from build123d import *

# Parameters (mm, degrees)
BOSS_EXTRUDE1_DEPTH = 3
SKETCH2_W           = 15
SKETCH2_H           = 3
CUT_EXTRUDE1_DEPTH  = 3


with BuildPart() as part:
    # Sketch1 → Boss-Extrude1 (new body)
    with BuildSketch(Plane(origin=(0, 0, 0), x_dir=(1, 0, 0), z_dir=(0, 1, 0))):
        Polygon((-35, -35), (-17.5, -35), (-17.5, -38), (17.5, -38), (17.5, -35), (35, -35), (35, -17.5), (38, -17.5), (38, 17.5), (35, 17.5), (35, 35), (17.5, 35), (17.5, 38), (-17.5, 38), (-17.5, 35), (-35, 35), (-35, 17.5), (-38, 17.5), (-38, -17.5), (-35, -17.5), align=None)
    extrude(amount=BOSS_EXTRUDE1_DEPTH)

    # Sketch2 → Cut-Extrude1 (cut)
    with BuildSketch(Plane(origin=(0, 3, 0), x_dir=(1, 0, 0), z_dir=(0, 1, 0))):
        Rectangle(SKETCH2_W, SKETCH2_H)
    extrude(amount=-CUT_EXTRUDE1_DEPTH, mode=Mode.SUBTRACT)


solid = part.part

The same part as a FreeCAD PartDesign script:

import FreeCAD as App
import Part
import Sketcher
from FreeCAD import Vector


def add_polygon(sketch, points):
    """Adds a closed chain of lines whose ends are joined by coincident constraints."""
    first, n = sketch.GeometryCount, len(points)
    for a, b in zip(points, points[1:] + points[:1]):
        sketch.addGeometry(Part.LineSegment(App.Vector(*a, 0), App.Vector(*b, 0)), False)
    for i in range(n):
        sketch.addConstraint(Sketcher.Constraint("Coincident", first + i, 2, first + (i + 1) % n, 1))

doc = App.newDocument("Part")
body = doc.addObject("PartDesign::Body", "Body")

# Sketch on XZ plane
sketch1 = body.newObject("Sketcher::SketchObject", "Sketch")
sketch1.AttachmentSupport = (doc.getObject("XZ_Plane"), [""])
sketch1.MapMode = "FlatFace"
add_polygon(sketch1, [(-35, 35), (-17.5, 35), (-17.5, 38), (17.5, 38), (17.5, 35), (35, 35), (35, 17.5), (38, 17.5), (38, -17.5), (35, -17.5), (35, -35), (17.5, -35), (17.5, -38), (-17.5, -38), (-17.5, -35), (-35, -35), (-35, -17.5), (-38, -17.5), (-38, 17.5), (-35, 17.5)])  # lines 0-19
sketch1.addConstraint([
    Sketcher.Constraint("Horizontal", 0),
    Sketcher.Constraint("Vertical", 1),
    Sketcher.Constraint("Horizontal", 2),
    Sketcher.Constraint("Vertical", 3),
    Sketcher.Constraint("Horizontal", 4),
    Sketcher.Constraint("Vertical", 5),
    Sketcher.Constraint("Horizontal", 6),
    Sketcher.Constraint("Vertical", 7),
    Sketcher.Constraint("Horizontal", 8),
    Sketcher.Constraint("Vertical", 9),
    Sketcher.Constraint("Horizontal", 10),
    Sketcher.Constraint("Vertical", 11),
    Sketcher.Constraint("Horizontal", 12),
    Sketcher.Constraint("Vertical", 13),
    Sketcher.Constraint("Horizontal", 14),
    Sketcher.Constraint("Vertical", 15),
    Sketcher.Constraint("Horizontal", 16),
    Sketcher.Constraint("Vertical", 17),
    Sketcher.Constraint("Horizontal", 18),
    Sketcher.Constraint("Vertical", 19),
    Sketcher.Constraint("Symmetric", 0, 2, 10, 2, -1, 1),
    Sketcher.Constraint("Symmetric", 2, 2, 12, 2, -1, 1),
    Sketcher.Constraint("Symmetric", 4, 2, 14, 2, -1, 1),
    Sketcher.Constraint("Symmetric", 6, 2, 16, 2, -1, 1),
    Sketcher.Constraint("Symmetric", 8, 2, 18, 2, -1, 1),
    Sketcher.Constraint("Symmetric", 0, 2, 3, 2, -2),
    Sketcher.Constraint("Symmetric", 8, 2, 15, 2, -2),
    Sketcher.Constraint("Equal", 18, 1),
    Sketcher.Constraint("Equal", 14, 5),
    Sketcher.Constraint("Equal", 12, 7),
    Sketcher.Constraint("DistanceX", 2, 1, 2, 2, 35.0),
    Sketcher.Constraint("DistanceX", 6, 1, 6, 2, 3.0),
    Sketcher.Constraint("DistanceX", 0, 1, 0, 2, 17.5),
])
pad1 = body.newObject("PartDesign::Pad", "Pad")
pad1.Profile = sketch1
pad1.Length = 3
pad1.Reversed = True

# Sketch on XZ plane
sketch2 = body.newObject("Sketcher::SketchObject", "Sketch001")
sketch2.AttachmentSupport = (doc.getObject("XZ_Plane"), [""])
sketch2.MapMode = "FlatFace"
sketch2.AttachmentOffset = App.Placement(Vector(0, 0, -3), App.Rotation())
add_polygon(sketch2, [(-7.5, -1.5), (-7.5, 1.5), (7.5, 1.5), (7.5, -1.5)])  # lines 0-3
sketch2.addConstraint([
    Sketcher.Constraint("Vertical", 0),
    Sketcher.Constraint("Horizontal", 1),
    Sketcher.Constraint("Vertical", 2),
    Sketcher.Constraint("Horizontal", 3),
    Sketcher.Constraint("Symmetric", 0, 2, 2, 2, -1, 1),
    Sketcher.Constraint("DistanceX", 1, 1, 1, 2, 15.0),
    Sketcher.Constraint("DistanceY", 0, 1, 0, 2, 3.0),
])
pocket1 = body.newObject("PartDesign::Pocket", "Pocket")
pocket1.Profile = sketch2
pocket1.Length = 3
pocket1.Reversed = True

doc.recompute()
